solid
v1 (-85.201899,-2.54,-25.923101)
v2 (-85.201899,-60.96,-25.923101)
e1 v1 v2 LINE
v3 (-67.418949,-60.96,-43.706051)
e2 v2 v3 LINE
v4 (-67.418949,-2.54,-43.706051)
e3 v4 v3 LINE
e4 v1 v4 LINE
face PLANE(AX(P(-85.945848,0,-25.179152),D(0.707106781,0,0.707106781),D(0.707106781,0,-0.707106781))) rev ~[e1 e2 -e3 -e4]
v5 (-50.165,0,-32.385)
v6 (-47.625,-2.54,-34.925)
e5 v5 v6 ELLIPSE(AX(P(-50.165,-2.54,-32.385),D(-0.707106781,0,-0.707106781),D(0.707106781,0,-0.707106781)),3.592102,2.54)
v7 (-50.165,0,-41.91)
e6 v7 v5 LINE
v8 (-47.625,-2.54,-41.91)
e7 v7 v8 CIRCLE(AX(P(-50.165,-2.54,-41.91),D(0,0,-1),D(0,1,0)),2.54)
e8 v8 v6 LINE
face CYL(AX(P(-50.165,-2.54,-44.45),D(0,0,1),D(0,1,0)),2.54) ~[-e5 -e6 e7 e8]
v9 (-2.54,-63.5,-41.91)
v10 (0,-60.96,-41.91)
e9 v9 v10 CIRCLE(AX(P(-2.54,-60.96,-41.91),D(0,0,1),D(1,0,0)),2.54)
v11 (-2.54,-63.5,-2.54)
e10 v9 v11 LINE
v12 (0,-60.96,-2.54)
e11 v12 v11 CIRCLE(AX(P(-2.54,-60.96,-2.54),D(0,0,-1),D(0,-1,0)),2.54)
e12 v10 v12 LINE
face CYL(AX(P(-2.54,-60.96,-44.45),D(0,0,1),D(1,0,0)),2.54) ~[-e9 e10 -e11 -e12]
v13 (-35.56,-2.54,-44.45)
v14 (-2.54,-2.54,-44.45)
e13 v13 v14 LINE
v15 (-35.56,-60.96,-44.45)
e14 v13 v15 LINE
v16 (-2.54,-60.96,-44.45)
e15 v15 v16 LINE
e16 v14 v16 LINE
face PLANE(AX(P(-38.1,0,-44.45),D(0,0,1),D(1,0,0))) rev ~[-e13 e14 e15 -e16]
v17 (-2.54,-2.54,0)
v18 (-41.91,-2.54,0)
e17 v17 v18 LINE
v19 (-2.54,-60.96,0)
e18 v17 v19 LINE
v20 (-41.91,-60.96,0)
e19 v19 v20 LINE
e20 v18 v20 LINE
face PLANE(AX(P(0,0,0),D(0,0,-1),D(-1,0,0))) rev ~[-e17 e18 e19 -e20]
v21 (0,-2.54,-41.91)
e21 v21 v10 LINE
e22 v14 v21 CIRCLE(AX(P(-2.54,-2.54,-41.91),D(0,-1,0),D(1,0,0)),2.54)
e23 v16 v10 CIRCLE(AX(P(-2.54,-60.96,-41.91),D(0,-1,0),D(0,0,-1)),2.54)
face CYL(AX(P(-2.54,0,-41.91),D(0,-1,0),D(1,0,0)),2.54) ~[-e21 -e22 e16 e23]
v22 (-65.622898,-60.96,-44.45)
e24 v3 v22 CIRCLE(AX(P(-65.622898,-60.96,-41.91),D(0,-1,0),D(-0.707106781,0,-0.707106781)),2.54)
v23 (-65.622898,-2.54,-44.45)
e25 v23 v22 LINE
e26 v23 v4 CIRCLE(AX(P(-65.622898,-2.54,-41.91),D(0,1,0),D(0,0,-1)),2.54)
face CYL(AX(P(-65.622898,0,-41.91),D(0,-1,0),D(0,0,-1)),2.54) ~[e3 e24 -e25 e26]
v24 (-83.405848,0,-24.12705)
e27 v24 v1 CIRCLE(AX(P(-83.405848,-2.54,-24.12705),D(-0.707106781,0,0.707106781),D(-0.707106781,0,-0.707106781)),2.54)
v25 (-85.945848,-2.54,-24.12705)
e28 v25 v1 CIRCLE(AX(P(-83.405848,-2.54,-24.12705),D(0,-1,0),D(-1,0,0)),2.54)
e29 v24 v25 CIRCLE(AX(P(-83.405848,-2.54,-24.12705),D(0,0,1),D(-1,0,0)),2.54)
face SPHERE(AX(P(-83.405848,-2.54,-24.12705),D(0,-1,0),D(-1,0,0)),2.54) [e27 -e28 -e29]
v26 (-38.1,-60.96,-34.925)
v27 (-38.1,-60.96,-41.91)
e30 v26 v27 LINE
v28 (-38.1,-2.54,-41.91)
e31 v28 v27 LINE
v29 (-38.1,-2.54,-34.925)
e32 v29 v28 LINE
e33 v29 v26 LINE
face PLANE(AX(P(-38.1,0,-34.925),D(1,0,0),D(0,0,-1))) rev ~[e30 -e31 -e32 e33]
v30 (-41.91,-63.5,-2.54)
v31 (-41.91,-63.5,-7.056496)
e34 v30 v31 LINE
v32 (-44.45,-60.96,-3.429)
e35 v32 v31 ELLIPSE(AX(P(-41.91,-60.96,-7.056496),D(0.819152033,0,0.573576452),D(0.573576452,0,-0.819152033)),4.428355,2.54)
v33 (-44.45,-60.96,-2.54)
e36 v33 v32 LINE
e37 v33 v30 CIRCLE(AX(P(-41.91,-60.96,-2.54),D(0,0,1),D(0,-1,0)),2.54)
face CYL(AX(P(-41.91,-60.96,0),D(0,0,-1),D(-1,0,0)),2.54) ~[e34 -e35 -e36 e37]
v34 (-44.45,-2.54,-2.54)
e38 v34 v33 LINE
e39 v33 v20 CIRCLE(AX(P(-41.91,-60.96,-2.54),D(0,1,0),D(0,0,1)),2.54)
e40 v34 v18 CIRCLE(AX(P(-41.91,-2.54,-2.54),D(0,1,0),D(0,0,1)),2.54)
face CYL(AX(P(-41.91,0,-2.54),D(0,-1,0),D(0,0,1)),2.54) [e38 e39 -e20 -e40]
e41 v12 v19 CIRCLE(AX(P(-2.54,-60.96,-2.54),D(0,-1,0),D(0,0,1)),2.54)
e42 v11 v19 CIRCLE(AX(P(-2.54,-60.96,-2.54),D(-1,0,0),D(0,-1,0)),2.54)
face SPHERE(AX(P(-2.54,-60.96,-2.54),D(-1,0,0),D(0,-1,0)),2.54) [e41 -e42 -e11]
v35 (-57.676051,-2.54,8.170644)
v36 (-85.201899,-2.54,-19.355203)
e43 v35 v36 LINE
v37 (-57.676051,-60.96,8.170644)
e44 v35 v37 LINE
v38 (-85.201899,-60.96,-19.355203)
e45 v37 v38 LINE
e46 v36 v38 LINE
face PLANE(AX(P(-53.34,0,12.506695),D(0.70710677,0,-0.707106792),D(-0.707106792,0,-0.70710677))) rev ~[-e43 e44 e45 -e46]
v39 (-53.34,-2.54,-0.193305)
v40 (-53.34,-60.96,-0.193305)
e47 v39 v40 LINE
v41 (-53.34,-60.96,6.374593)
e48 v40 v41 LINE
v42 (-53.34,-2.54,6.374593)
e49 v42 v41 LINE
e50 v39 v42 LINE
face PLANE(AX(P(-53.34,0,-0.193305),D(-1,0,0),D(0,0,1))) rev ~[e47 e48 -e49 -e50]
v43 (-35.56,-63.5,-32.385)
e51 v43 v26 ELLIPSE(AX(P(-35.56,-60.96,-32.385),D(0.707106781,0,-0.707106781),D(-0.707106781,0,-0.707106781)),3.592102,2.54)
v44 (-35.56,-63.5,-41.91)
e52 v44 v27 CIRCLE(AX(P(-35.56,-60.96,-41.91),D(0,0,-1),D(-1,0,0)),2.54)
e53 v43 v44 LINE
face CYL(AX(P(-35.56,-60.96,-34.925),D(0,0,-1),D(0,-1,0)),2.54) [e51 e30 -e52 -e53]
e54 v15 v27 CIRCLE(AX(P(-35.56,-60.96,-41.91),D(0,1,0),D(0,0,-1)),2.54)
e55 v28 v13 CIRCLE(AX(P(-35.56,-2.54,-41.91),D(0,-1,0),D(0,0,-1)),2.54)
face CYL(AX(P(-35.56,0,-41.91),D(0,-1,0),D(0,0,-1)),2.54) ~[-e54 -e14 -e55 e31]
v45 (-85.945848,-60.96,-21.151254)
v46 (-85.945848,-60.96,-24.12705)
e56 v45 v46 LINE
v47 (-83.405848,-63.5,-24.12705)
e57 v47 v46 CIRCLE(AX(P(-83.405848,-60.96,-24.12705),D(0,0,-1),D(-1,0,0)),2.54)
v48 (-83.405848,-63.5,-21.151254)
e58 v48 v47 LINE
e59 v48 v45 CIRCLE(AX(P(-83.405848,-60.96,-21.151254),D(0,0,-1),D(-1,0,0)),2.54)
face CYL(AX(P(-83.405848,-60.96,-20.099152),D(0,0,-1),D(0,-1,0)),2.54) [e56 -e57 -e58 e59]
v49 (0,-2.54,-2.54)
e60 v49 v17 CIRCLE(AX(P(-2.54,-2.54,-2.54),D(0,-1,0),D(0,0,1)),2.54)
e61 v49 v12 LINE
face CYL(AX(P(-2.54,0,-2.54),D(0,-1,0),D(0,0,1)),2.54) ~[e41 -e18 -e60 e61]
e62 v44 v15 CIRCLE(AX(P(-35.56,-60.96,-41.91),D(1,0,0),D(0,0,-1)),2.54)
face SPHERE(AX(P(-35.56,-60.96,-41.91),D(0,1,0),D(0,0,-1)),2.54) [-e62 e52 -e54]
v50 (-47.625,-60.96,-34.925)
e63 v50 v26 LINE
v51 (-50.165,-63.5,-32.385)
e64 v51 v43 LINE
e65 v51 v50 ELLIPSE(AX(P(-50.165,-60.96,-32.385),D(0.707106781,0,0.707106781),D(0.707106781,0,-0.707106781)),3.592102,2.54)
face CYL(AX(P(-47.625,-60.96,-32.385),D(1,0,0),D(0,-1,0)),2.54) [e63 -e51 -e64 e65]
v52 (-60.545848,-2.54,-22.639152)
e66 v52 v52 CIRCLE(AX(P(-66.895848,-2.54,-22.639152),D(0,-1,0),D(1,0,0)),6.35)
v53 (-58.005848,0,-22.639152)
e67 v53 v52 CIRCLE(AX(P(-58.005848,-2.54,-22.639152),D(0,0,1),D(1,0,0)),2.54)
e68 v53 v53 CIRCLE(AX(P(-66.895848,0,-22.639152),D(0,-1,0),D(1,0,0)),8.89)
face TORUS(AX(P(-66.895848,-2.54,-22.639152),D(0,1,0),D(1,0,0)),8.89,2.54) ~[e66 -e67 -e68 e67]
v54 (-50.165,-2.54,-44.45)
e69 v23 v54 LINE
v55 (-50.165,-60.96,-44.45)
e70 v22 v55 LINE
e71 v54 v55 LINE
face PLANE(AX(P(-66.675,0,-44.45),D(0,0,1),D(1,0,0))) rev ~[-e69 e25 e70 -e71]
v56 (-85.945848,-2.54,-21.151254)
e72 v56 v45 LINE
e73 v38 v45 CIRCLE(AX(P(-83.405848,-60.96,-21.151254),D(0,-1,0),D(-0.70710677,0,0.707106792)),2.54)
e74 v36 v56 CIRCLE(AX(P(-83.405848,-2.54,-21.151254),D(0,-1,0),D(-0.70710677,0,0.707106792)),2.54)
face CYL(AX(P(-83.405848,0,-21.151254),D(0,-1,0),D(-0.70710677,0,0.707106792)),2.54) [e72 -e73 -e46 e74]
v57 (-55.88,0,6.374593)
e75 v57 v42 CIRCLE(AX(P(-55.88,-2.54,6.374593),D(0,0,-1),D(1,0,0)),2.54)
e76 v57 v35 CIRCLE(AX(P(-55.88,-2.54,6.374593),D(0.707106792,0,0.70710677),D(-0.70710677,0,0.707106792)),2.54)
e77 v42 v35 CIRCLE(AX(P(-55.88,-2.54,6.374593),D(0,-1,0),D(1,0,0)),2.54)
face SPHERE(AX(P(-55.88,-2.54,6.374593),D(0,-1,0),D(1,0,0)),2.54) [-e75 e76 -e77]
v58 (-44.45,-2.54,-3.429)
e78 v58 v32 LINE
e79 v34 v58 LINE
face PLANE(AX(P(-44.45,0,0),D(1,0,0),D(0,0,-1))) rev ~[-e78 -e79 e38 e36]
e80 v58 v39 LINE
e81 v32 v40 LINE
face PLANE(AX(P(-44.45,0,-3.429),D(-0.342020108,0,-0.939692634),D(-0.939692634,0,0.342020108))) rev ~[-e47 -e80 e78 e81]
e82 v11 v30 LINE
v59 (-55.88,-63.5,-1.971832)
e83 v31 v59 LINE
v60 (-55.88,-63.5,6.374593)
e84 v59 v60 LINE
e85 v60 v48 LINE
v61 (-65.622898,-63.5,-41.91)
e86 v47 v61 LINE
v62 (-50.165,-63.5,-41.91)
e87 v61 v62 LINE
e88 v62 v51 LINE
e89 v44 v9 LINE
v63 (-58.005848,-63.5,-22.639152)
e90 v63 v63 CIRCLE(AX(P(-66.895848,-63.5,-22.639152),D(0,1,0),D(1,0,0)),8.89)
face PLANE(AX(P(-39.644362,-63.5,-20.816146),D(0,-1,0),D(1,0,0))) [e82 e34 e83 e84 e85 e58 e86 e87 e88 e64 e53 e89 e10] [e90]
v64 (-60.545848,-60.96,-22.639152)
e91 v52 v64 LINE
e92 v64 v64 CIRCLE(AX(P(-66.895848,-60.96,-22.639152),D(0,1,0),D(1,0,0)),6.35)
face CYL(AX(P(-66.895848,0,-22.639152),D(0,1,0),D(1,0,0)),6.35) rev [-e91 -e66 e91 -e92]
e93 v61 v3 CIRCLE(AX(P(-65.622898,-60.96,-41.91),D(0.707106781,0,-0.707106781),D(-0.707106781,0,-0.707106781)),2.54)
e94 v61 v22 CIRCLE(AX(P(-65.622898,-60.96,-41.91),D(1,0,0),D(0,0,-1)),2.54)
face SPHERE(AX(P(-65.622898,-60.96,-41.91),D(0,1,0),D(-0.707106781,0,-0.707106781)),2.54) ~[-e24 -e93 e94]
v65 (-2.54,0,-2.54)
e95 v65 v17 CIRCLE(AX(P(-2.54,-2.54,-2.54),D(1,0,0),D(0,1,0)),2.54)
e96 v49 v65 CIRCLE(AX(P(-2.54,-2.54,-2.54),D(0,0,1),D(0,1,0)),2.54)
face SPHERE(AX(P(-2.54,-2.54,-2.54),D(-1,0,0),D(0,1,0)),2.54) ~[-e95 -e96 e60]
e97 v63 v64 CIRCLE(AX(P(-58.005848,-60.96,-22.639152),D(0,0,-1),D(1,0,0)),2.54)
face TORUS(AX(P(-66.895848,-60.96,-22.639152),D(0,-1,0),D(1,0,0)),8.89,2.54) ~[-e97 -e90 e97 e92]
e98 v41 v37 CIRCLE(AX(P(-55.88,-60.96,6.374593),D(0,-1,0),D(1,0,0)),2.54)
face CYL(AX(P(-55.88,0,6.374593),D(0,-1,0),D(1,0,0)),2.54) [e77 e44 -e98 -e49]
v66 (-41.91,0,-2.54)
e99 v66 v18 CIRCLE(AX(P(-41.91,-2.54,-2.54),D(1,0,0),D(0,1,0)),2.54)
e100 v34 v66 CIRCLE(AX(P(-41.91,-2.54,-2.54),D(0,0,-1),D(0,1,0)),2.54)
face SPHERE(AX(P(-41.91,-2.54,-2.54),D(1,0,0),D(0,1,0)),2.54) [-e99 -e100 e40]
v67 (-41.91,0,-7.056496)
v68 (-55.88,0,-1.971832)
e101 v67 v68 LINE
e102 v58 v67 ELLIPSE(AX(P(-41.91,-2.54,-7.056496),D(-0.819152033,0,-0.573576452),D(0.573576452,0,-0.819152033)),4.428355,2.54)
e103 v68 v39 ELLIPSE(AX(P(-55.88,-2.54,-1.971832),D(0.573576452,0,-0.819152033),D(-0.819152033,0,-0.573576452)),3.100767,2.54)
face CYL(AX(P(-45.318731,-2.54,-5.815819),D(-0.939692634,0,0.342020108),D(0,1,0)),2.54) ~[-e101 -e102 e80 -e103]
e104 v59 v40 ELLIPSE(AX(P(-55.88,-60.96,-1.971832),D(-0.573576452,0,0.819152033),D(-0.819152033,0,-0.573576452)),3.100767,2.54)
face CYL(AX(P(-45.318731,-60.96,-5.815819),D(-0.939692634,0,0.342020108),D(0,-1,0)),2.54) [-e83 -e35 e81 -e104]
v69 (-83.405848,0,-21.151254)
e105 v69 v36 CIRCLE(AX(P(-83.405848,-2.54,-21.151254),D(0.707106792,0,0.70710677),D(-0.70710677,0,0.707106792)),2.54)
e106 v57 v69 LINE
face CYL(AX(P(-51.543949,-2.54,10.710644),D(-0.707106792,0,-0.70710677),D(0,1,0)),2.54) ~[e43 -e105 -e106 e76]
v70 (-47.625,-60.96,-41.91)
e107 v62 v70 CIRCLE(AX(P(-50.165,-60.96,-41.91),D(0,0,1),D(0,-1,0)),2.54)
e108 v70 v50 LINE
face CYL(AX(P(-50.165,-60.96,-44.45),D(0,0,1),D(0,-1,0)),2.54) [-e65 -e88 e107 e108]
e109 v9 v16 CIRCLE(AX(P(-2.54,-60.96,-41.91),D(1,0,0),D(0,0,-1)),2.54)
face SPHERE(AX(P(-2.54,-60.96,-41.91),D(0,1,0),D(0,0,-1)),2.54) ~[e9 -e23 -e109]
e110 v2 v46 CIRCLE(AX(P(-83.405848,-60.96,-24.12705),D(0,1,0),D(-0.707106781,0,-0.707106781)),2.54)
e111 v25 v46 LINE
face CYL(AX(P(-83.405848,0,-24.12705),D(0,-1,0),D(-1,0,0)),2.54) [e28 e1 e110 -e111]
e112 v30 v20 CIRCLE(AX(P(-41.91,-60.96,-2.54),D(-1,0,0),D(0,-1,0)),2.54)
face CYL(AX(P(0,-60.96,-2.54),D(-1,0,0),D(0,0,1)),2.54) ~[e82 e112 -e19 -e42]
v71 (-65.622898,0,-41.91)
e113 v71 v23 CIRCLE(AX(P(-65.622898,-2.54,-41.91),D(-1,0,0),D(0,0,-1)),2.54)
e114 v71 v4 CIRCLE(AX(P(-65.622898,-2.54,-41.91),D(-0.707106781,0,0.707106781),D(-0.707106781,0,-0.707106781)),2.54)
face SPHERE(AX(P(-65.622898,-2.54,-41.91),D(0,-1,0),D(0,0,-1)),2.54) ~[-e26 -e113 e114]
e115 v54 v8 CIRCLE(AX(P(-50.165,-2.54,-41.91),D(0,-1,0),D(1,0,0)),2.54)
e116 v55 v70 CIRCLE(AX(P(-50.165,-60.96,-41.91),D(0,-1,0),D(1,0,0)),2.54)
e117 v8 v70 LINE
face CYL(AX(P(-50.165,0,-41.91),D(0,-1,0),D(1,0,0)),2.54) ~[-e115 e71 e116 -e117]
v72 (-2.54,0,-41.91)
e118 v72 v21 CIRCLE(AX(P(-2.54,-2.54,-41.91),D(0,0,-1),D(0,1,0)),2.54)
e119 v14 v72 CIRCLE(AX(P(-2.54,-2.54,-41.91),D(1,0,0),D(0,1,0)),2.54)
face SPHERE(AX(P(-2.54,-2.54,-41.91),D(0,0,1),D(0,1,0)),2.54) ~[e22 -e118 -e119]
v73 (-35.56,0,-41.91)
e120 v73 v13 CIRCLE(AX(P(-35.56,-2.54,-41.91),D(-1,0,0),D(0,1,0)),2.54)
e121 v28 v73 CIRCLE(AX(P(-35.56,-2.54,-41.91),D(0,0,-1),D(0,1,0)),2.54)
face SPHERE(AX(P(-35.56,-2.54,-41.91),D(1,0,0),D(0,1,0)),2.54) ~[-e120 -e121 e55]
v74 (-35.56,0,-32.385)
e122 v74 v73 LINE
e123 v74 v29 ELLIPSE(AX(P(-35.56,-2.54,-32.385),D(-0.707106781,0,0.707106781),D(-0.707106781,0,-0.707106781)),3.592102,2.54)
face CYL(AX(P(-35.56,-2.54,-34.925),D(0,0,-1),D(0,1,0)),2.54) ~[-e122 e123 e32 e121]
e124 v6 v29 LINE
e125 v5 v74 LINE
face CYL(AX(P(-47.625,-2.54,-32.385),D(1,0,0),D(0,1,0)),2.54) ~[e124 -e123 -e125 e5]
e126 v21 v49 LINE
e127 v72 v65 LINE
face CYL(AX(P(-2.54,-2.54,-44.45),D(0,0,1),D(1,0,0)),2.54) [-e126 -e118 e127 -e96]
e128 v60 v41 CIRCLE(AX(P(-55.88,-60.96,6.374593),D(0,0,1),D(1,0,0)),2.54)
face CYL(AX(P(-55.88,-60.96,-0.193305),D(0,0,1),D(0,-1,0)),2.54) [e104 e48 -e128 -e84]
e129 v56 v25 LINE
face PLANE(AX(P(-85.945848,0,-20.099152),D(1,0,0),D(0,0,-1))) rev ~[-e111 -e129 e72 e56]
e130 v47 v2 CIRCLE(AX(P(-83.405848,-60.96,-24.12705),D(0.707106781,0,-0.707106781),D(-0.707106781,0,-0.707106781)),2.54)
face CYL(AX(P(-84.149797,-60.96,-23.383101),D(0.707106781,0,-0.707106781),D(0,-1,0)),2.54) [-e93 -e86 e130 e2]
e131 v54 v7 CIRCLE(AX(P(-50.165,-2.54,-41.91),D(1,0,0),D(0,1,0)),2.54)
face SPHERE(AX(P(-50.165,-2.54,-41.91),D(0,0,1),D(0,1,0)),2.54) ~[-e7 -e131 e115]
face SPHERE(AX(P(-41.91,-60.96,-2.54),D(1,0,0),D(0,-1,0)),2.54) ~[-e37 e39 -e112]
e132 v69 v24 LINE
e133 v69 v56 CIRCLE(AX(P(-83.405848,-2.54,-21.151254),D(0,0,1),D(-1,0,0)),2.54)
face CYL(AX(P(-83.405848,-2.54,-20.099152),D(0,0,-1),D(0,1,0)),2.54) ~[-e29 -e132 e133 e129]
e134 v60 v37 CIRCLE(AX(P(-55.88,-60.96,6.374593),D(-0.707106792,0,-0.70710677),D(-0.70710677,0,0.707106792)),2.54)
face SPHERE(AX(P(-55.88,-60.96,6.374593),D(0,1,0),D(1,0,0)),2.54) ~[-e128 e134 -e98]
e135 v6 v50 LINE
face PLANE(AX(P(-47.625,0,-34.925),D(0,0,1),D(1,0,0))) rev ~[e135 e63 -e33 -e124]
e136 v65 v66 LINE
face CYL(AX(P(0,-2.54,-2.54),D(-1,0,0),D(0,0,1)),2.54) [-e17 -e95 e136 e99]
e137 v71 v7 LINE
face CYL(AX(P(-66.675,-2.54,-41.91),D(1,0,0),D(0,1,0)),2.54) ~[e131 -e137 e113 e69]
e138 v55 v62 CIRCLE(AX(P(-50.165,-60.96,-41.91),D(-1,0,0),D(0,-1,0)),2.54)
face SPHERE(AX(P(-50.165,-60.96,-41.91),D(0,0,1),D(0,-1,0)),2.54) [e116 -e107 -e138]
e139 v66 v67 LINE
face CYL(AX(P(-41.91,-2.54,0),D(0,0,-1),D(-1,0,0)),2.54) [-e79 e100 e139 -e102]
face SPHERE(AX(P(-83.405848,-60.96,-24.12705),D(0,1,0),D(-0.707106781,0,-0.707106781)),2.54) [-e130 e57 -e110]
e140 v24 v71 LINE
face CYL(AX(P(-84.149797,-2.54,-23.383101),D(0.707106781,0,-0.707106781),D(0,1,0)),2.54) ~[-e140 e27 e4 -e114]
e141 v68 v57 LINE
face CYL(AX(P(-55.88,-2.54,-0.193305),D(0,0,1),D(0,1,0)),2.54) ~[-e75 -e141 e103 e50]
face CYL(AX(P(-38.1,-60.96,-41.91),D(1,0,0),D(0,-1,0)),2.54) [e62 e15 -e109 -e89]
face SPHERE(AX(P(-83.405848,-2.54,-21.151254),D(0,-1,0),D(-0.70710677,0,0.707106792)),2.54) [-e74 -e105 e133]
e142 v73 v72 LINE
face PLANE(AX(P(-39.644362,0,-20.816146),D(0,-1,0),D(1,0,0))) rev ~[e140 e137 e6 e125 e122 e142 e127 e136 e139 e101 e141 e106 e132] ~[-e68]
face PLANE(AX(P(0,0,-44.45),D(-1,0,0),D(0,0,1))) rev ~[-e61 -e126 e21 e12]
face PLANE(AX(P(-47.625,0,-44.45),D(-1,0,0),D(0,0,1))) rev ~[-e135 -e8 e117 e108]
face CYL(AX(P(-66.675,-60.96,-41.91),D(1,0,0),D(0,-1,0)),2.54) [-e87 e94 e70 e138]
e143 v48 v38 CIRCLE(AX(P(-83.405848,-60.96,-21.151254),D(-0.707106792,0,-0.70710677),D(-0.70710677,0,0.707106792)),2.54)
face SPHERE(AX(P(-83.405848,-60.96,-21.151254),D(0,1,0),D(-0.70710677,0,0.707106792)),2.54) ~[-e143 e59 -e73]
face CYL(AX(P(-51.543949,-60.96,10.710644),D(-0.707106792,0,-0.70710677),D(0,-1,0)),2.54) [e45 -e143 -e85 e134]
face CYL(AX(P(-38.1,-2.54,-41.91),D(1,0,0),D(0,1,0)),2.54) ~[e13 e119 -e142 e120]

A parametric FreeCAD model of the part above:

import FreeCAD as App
import Part
import Sketcher
Q = App.Units.Quantity


def edges_at(feature, points):
    """Names of the edges that pass closest to the given points."""
    edges = feature.Shape.Edges
    near = lambda p: min(range(len(edges)), key=lambda i: edges[i].distToShape(Part.Vertex(*p))[0])
    return sorted({f"Edge{near(p) + 1}" for p in points})

doc = App.newDocument("Part")
params = doc.addObject("Spreadsheet::Sheet", "Params")
for row, (alias, value) in enumerate([
    ("sketch1_width", "1.5 in"),
    ("sketch1_height", "0.5 in"),
    ("sketch1_height2", "0.2 in"),
    ("sketch1_width2", "1.75 in"),
    ("sketch1_width3", "0.75 in"),
    ("pad1_length", "2.5 in"),
    ("sketch2_diameter", "0.5 in"),
    ("fillet_radius", "0.1 in"),
], start=1):
    params.set(f"A{row}", alias)
    params.set(f"B{row}", "=" + value)
    params.setAlias(f"B{row}", alias)

body = doc.addObject("PartDesign::Body", "Body")

sketch1 = body.newObject("Sketcher::SketchObject", "Sketch")
sketch1.AttachmentSupport = (doc.getObject("XZ_Plane"), [""])
sketch1.MapMode = "FlatFace"
sketch1.addGeometry([
    Part.LineSegment(App.Vector(0, 0, 0), App.Vector(-44.5, 0, 0)),
    Part.LineSegment(App.Vector(-44.5, 0, 0), App.Vector(-44.5, -3.4, 0)),
    Part.LineSegment(App.Vector(-44.5, -3.4, 0), App.Vector(-53.3, -0.2, 0)),
    Part.LineSegment(App.Vector(-53.3, -0.2, 0), App.Vector(-53.3, 12.5, 0)),
    Part.LineSegment(App.Vector(-53.3, 12.5, 0), App.Vector(-85.9, -20.1, 0)),
    Part.LineSegment(App.Vector(-85.9, -20.1, 0), App.Vector(-85.9, -25.2, 0)),
    Part.LineSegment(App.Vector(-85.9, -25.2, 0), App.Vector(-66.7, -44.5, 0)),
    Part.LineSegment(App.Vector(-66.7, -44.5, 0), App.Vector(-47.6, -44.5, 0)),
    Part.LineSegment(App.Vector(-47.6, -44.5, 0), App.Vector(-47.6, -34.9, 0)),
    Part.LineSegment(App.Vector(-47.6, -34.9, 0), App.Vector(-38.1, -34.9, 0)),
    Part.LineSegment(App.Vector(-38.1, -34.9, 0), App.Vector(-38.1, -44.5, 0)),
    Part.LineSegment(App.Vector(-38.1, -44.5, 0), App.Vector(0, -44.5, 0)),
    Part.LineSegment(App.Vector(0, -44.5, 0), App.Vector(0, 0, 0)),
], False)
sketch1.addConstraint([
    Sketcher.Constraint("Coincident", 0, 2, 1, 1),
    Sketcher.Constraint("Coincident", 1, 2, 2, 1),
    Sketcher.Constraint("Coincident", 2, 2, 3, 1),
    Sketcher.Constraint("Coincident", 3, 2, 4, 1),
    Sketcher.Constraint("Coincident", 4, 2, 5, 1),
    Sketcher.Constraint("Coincident", 5, 2, 6, 1),
    Sketcher.Constraint("Coincident", 6, 2, 7, 1),
    Sketcher.Constraint("Coincident", 7, 2, 8, 1),
    Sketcher.Constraint("Coincident", 8, 2, 9, 1),
    Sketcher.Constraint("Coincident", 9, 2, 10, 1),
    Sketcher.Constraint("Coincident", 10, 2, 11, 1),
    Sketcher.Constraint("Coincident", 11, 2, 12, 1),
    Sketcher.Constraint("Coincident", 12, 2, 0, 1),
    Sketcher.Constraint("Horizontal", 0),
    Sketcher.Constraint("Vertical", 1),
    Sketcher.Constraint("Vertical", 3),
    Sketcher.Constraint("Vertical", 5),
    Sketcher.Constraint("Horizontal", 7),
    Sketcher.Constraint("Vertical", 8),
    Sketcher.Constraint("Horizontal", 9),
    Sketcher.Constraint("Vertical", 10),
    Sketcher.Constraint("Horizontal", 11),
    Sketcher.Constraint("Vertical", 12),
    Sketcher.Constraint("Coincident", 12, 2, -1, 1),
    Sketcher.Constraint("Perpendicular", 4, 6),
    Sketcher.Constraint("Horizontal", 7, 2, 10, 2),
    Sketcher.Constraint("Equal", 9, 8),
    Sketcher.Constraint("Equal", 0, 12),
    Sketcher.Constraint("DistanceX", 11, 1, 11, 2, Q("1.5 in")),
    Sketcher.Constraint("DistanceY", 3, 1, 3, 2, Q("0.5 in")),
    Sketcher.Constraint("DistanceY", 5, 2, 5, 1, Q("0.2 in")),
    Sketcher.Constraint("Angle", 2, Q("160.000002 deg")),
    Sketcher.Constraint("Angle", 4, Q("-135.000001 deg")),
    Sketcher.Constraint("DistanceX", 0, 2, 0, 1, Q("1.75 in")),
    Sketcher.Constraint("DistanceX", 7, 1, 7, 2, Q("0.75 in")),
    Sketcher.Constraint("DistanceX", 2, 2, -1, 1, Q("2.1 in")),
    Sketcher.Constraint("DistanceX", 9, 1, 9, 2, Q("0.375 in")),
    Sketcher.Constraint("DistanceY", 1, 2, 1, 1, Q("0.135 in")),
])
sketch1.setExpression("Constraints[28]", "Params.sketch1_width")
sketch1.setExpression("Constraints[29]", "Params.sketch1_height")
sketch1.setExpression("Constraints[30]", "Params.sketch1_height2")
sketch1.setExpression("Constraints[33]", "Params.sketch1_width2")
sketch1.setExpression("Constraints[34]", "Params.sketch1_width3")
pad1 = body.newObject("PartDesign::Pad", "Pad")
pad1.Profile = sketch1
pad1.setExpression("Length", "Params.pad1_length")

sketch2 = body.newObject("Sketcher::SketchObject", "Sketch001")
sketch2.AttachmentSupport = (doc.getObject("XZ_Plane"), [""])
sketch2.MapMode = "FlatFace"
sketch2.addGeometry(Part.Circle(App.Vector(-67, -23, 0), App.Vector(0, 0, 1), 6), False)
sketch2.addConstraint([
    Sketcher.Constraint("Diameter", 0, Q("0.5 in")),
    Sketcher.Constraint("DistanceX", 0, 3, -1, 1, 66.895848),
    Sketcher.Constraint("DistanceY", 0, 3, -1, 1, 22.639152),
])
sketch2.setExpression("Constraints[0]", "Params.sketch2_diameter")
pocket1 = body.newObject("PartDesign::Pocket", "Pocket")
pocket1.Profile = sketch2
pocket1.Type = "ThroughAll"
pocket1.Reversed = True
doc.recompute()

fillet = body.newObject("PartDesign::Fillet", "Fillet")
fillet.Base = (pocket1, edges_at(pocket1, [
    (-22.225, 0, 0),
    (0, 0, -22.225),
    (-44.45, 0, -1.714),
    (-19.05, 0, -44.45),
    (-48.895, 0, -1.811),
    (-38.1, 0, -39.688),
    (-53.34, 0, 6.157),
    (-42.862, 0, -34.925),
    (-69.643, 0, -3.796),
    (-47.625, 0, -39.688),
    (-85.946, 0, -22.639),
    (-57.15, 0, -44.45),
    (-76.31, 0, -34.815),
    (-73.246, 0, -22.639),
    (-85.946, -31.75, -25.179),
    (-66.675, -31.75, -44.45),
    (-76.31, -63.5, -34.815),
    (-38.1, -31.75, -44.45),
    (0, -31.75, -44.45),
    (-19.05, -63.5, -44.45),
    (-22.225, -63.5, 0),
    (0, -63.5, -22.225),
    (-44.45, -63.5, -1.714),
    (-48.895, -63.5, -1.811),
    (-38.1, -63.5, -39.688),
    (-53.34, -63.5, 6.157),
    (-42.862, -63.5, -34.925),
    (-69.643, -63.5, -3.796),
    (-47.625, -63.5, -39.688),
    (-85.946, -63.5, -22.639),
    (-57.15, -63.5, -44.45),
    (-73.246, -63.5, -22.639),
    (-47.625, -31.75, -44.45),
    (0, -31.75, 0),
    (-44.45, -31.75, 0),
    (-53.34, -31.75, 12.507),
    (-85.946, -31.75, -20.099),
]))
fillet.setExpression("Radius", "Params.fillet_radius")

doc.recompute()
